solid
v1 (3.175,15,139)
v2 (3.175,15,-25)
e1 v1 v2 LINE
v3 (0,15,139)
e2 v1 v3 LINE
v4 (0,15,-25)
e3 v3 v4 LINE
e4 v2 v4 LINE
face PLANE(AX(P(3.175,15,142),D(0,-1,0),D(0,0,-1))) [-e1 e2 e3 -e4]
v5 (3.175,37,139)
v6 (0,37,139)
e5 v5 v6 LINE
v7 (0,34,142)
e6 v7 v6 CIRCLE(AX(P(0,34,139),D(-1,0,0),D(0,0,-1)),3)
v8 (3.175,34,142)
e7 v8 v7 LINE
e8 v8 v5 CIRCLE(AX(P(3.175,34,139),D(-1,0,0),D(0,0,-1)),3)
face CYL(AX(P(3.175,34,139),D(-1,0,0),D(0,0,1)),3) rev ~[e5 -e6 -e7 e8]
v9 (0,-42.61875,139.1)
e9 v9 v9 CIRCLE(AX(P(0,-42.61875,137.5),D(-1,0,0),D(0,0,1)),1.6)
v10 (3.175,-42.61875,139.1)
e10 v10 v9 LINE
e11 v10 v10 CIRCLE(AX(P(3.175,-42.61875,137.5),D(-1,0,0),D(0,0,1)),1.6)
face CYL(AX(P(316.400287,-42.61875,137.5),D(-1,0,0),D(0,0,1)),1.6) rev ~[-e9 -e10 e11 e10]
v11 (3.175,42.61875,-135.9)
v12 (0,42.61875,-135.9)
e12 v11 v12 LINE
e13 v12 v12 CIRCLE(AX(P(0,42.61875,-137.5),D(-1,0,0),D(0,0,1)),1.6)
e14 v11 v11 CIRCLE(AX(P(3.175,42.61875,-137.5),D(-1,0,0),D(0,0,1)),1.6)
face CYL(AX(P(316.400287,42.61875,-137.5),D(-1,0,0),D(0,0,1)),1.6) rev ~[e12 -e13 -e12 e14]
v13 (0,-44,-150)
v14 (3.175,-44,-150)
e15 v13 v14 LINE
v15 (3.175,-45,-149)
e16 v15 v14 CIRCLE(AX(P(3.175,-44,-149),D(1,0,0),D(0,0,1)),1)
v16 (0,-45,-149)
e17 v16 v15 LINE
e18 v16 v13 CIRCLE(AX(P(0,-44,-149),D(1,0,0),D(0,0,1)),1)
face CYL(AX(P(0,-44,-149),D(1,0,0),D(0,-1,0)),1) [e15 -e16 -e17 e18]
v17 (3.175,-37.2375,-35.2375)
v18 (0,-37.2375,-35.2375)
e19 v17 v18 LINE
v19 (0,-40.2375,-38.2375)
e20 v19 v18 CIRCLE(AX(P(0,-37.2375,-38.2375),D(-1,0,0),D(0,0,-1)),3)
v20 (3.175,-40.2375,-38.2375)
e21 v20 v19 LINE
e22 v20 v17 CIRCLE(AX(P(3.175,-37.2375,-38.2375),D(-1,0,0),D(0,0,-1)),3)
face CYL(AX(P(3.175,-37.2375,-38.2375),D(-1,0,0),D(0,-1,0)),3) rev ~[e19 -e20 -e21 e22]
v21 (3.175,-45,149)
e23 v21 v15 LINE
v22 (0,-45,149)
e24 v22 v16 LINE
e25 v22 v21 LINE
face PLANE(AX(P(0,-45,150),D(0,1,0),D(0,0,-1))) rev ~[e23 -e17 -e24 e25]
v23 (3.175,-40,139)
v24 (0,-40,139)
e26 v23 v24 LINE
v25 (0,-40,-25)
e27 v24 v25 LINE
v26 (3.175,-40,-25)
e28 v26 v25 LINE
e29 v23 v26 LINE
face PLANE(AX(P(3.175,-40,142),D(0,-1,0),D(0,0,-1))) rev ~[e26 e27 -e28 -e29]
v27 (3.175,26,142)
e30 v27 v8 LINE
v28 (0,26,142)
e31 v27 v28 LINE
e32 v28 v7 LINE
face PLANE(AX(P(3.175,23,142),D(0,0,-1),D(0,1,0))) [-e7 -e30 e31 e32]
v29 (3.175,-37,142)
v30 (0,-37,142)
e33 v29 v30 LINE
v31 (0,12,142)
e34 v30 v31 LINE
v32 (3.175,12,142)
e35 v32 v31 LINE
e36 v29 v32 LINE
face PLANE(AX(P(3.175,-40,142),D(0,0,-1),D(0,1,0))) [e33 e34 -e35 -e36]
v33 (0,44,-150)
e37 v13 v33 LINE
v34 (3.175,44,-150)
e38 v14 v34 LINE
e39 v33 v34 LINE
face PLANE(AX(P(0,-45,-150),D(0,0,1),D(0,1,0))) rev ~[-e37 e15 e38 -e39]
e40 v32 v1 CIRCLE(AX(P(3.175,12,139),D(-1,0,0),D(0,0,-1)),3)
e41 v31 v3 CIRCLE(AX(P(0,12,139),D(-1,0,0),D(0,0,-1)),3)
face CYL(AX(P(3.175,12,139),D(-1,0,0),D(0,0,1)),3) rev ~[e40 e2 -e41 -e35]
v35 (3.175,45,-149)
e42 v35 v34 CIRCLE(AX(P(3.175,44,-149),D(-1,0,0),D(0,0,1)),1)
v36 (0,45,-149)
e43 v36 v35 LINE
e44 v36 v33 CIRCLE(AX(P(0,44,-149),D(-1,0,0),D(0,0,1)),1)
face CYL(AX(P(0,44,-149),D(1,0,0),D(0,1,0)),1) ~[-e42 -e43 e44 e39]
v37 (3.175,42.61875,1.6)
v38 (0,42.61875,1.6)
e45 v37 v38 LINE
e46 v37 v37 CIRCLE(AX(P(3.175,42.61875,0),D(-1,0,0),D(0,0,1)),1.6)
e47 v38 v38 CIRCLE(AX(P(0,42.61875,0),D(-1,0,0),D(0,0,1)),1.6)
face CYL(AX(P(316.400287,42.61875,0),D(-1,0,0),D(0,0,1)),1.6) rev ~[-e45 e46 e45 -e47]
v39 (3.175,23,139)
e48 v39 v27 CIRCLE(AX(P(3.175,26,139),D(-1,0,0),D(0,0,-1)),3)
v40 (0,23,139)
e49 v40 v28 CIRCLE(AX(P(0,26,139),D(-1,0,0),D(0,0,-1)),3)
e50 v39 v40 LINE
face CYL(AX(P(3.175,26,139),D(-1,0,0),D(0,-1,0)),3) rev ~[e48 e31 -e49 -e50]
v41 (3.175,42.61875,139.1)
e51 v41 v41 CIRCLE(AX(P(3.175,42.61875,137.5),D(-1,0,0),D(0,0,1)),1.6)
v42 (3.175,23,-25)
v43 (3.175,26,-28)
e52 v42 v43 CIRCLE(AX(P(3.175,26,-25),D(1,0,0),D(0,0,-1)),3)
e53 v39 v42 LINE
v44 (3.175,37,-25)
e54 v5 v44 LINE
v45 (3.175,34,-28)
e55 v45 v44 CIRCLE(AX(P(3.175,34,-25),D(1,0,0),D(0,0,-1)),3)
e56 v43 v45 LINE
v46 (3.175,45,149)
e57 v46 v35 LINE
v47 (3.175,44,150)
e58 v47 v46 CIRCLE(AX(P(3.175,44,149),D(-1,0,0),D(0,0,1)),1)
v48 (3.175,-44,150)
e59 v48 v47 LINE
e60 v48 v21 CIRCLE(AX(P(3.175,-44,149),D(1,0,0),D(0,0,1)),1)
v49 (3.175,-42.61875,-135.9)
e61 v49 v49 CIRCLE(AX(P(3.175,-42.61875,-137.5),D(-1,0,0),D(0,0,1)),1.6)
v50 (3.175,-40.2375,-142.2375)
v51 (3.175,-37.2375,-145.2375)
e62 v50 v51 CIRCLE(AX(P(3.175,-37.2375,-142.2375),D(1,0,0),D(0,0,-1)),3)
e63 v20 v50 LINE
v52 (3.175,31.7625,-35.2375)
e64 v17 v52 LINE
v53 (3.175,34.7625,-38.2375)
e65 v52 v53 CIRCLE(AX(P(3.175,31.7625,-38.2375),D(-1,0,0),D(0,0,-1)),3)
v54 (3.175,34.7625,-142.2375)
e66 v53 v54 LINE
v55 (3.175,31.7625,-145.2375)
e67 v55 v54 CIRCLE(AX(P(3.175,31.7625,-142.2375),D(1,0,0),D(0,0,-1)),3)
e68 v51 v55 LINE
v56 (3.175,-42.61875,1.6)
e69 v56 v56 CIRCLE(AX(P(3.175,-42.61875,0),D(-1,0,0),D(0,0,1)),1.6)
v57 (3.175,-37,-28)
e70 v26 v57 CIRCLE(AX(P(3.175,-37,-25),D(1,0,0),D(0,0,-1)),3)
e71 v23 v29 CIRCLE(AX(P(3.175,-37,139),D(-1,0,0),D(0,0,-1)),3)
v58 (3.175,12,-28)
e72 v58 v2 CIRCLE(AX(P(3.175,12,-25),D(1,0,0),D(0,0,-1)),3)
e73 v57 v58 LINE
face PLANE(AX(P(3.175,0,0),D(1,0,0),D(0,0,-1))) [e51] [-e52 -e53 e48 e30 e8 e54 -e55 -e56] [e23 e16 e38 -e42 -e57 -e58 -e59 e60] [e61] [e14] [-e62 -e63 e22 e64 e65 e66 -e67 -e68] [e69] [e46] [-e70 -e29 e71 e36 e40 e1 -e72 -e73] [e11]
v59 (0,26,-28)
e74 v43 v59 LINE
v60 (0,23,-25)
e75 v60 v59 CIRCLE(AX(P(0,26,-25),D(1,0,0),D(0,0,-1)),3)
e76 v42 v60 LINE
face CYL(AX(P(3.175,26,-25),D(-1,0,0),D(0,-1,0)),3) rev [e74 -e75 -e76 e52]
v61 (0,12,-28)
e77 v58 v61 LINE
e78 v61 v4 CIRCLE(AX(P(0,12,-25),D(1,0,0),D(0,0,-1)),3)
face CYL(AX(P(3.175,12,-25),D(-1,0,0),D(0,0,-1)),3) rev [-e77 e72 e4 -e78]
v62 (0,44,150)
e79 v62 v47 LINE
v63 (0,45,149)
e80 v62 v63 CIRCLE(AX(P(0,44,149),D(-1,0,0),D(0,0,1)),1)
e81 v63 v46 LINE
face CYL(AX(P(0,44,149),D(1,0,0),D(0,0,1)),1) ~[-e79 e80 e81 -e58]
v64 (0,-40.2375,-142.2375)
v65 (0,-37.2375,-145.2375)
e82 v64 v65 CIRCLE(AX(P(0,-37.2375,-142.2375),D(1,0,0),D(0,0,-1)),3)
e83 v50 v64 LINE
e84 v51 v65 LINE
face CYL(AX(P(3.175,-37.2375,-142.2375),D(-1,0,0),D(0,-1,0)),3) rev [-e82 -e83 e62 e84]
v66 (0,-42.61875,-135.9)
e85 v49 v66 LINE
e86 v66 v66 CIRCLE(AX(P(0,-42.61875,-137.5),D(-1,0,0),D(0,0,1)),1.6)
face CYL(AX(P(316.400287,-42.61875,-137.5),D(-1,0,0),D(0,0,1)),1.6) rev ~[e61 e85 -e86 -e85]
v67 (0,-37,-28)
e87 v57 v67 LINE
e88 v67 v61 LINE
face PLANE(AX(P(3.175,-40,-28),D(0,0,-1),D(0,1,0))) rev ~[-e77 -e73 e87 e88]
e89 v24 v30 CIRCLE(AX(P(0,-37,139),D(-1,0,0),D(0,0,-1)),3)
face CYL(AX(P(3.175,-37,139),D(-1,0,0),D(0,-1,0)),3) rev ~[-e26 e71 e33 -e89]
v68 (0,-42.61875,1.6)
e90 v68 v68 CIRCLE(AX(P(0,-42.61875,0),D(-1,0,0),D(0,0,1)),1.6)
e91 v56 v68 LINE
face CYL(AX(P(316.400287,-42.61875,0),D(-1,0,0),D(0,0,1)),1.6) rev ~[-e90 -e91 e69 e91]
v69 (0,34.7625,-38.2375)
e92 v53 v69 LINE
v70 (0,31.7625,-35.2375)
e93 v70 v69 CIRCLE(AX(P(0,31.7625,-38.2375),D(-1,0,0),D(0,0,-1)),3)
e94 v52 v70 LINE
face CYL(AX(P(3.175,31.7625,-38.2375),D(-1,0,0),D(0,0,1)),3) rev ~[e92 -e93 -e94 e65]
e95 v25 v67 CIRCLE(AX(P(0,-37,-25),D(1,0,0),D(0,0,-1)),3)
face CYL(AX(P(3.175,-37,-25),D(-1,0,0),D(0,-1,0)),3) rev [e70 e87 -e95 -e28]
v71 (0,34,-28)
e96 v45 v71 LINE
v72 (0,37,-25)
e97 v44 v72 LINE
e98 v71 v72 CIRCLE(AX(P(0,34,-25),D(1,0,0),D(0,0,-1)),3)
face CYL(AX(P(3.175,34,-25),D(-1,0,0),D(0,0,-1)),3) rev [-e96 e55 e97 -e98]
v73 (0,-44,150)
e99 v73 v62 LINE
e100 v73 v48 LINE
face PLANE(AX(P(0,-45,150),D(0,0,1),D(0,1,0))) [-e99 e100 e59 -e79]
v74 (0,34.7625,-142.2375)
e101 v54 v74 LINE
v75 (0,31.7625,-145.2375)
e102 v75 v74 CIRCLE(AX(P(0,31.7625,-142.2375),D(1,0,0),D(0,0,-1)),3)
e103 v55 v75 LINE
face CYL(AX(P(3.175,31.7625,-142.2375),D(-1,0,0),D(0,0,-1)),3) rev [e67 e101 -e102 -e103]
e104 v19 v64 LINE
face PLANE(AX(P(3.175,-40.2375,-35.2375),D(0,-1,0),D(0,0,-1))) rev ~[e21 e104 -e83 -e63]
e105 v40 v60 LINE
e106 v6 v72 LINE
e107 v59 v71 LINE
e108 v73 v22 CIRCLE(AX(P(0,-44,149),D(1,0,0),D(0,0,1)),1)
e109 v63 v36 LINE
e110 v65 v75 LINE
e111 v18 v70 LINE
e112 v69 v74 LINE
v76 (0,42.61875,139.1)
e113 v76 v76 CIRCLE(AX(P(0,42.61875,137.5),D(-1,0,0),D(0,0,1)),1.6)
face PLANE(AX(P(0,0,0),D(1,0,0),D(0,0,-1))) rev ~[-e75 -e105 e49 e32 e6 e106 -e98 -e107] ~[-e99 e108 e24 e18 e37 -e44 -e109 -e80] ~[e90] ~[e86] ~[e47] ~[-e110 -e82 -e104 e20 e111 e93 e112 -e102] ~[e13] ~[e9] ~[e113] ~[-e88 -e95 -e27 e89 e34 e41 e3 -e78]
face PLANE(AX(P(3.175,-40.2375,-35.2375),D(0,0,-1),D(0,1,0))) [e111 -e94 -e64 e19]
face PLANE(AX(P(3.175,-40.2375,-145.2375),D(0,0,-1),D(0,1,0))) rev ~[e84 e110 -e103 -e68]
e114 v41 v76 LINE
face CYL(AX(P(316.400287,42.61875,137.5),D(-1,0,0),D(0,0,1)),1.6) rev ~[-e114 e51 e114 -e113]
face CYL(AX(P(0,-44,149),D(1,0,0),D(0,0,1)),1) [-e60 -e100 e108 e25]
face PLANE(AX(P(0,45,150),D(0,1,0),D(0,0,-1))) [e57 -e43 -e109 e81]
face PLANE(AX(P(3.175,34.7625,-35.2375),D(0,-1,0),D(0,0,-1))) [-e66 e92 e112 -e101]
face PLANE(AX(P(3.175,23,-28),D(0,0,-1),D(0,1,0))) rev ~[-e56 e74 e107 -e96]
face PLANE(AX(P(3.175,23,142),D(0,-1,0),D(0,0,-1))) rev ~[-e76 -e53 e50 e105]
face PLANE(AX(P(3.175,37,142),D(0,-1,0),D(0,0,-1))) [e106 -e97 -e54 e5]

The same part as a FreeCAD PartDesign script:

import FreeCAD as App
import Part
import Sketcher
Q = App.Units.Quantity


def edges_at(feature, points):
    """Names of the edges that pass closest to the given points."""
    edges = feature.Shape.Edges
    near = lambda p: min(range(len(edges)), key=lambda i: edges[i].distToShape(Part.Vertex(*p))[0])
    return sorted({f"Edge{near(p) + 1}" for p in points})


def add_polygon(sketch, points):
    """Adds a closed chain of lines whose ends are joined by coincident constraints."""
    first, n = sketch.GeometryCount, len(points)
    for a, b in zip(points, points[1:] + points[:1]):
        sketch.addGeometry(Part.LineSegment(App.Vector(*a, 0), App.Vector(*b, 0)), False)
    for i in range(n):
        sketch.addConstraint(Sketcher.Constraint("Coincident", first + i, 2, first + (i + 1) % n, 1))

doc = App.newDocument("Part")
params = doc.addObject("Spreadsheet::Sheet", "Params")
for row, (alias, value) in enumerate([
    ("sketch1_width", "90 mm"),
    ("sketch1_height", "300 mm"),
    ("pad1_length", "3.175 mm"),
    ("sketch2_width", "55 mm"),
    ("sketch2_width2", "75 mm"),
    ("sketch2_width3", "14 mm"),
    ("sketch2_height", "170 mm"),
    ("sketch2_height2", "110 mm"),
    ("sketch3_diameter", "3.2 mm"),
    ("hole_diameter", "3.2 mm"),
    ("fillet_radius", "3 mm"),
    ("fillet2_radius", "1 mm"),
], start=1):
    params.set(f"A{row}", alias)
    params.set(f"B{row}", "=" + value)
    params.setAlias(f"B{row}", alias)

body = doc.addObject("PartDesign::Body", "Body")

sketch1 = doc.addObject("Sketcher::SketchObject", "Sketch")
body.addObject(sketch1)
sketch1.AttachmentSupport = (doc.YZ_Plane, [""])
sketch1.MapMode = "FlatFace"
add_polygon(sketch1, [(45, 150), (-45, 150), (-45, -150), (45, -150)])
sketch1.addConstraint([
    Sketcher.Constraint("Horizontal", 0),
    Sketcher.Constraint("Vertical", 1),
    Sketcher.Constraint("Horizontal", 2),
    Sketcher.Constraint("Vertical", 3),
    Sketcher.Constraint("Symmetric", 0, 2, 2, 2, -1, 1),
    Sketcher.Constraint("DistanceX", 0, 2, 0, 1, Q("90 mm")),
    Sketcher.Constraint("DistanceY", 1, 2, 1, 1, Q("300 mm")),
])
sketch1.setExpression("Constraints[9]", "Params.sketch1_width")
sketch1.setExpression("Constraints[10]", "Params.sketch1_height")
pad1 = doc.addObject("PartDesign::Pad", "Pad")
body.addObject(pad1)
pad1.Profile = sketch1
pad1.setExpression("Length", "Params.pad1_length")

sketch2 = doc.addObject("Sketcher::SketchObject", "Sketch001")
body.addObject(sketch2)
sketch2.AttachmentSupport = (doc.YZ_Plane, [""])
sketch2.MapMode = "FlatFace"
sketch2.AttachmentOffset = App.Placement(App.Vector(0, 0, 3.175), App.Rotation())
add_polygon(sketch2, [(15, 142), (-40, 142), (-40, -28), (15, -28)])
add_polygon(sketch2, [(35, -35), (-40, -35), (-40, -145), (35, -145)])
add_polygon(sketch2, [(37, 142), (23, 142), (23, -28), (37, -28)])
sketch2.addConstraint([
    Sketcher.Constraint("Horizontal", 0),
    Sketcher.Constraint("Vertical", 1),
    Sketcher.Constraint("Horizontal", 2),
    Sketcher.Constraint("Vertical", 3),
    Sketcher.Constraint("Horizontal", 4),
    Sketcher.Constraint("Vertical", 5),
    Sketcher.Constraint("Horizontal", 6),
    Sketcher.Constraint("Vertical", 7),
    Sketcher.Constraint("Horizontal", 8),
    Sketcher.Constraint("Vertical", 9),
    Sketcher.Constraint("Horizontal", 10),
    Sketcher.Constraint("Vertical", 11),
    Sketcher.Constraint("Horizontal", 3, 2, 8, 2),
    Sketcher.Constraint("Horizontal", 2, 2, 9, 2),
    Sketcher.Constraint("DistanceX", 0, 2, 0, 1, Q("55 mm")),
    Sketcher.Constraint("DistanceX", 4, 2, 4, 1, Q("75 mm")),
    Sketcher.Constraint("DistanceX", 8, 2, 8, 1, Q("14 mm")),
    Sketcher.Constraint("DistanceY", 1, 2, 1, 1, Q("170 mm")),
    Sketcher.Constraint("DistanceY", 5, 2, 5, 1, Q("110 mm")),
    Sketcher.Constraint("DistanceX", 0, 2, -1, 1, Q("40 mm")),
    Sketcher.Constraint("DistanceY", -1, 1, 0, 2, Q("142 mm")),
    Sketcher.Constraint("DistanceX", -1, 1, 8, 2, Q("23 mm")),
    Sketcher.Constraint("DistanceX", 4, 2, -1, 1, Q("40.2375 mm")),
    Sketcher.Constraint("DistanceY", 4, 2, -1, 1, Q("35.2375 mm")),
])
sketch2.setExpression("Constraints[26]", "Params.sketch2_width")
sketch2.setExpression("Constraints[27]", "Params.sketch2_width2")
sketch2.setExpression("Constraints[28]", "Params.sketch2_width3")
sketch2.setExpression("Constraints[29]", "Params.sketch2_height")
sketch2.setExpression("Constraints[30]", "Params.sketch2_height2")
pocket1 = doc.addObject("PartDesign::Pocket", "Pocket")
body.addObject(pocket1)
pocket1.Profile = sketch2
pocket1.Type = "ThroughAll"

sketch3 = doc.addObject("Sketcher::SketchObject", "Sketch002")
body.addObject(sketch3)
sketch3.AttachmentSupport = (doc.YZ_Plane, [""])
sketch3.MapMode = "FlatFace"
sketch3.AttachmentOffset = App.Placement(App.Vector(0, 0, 3.175), App.Rotation())
sketch3.addGeometry([
    Part.Circle(App.Vector(42.6, 137.5, 0), App.Vector(0, 0, 1), 1.6),
    Part.Circle(App.Vector(42.6, 0, 0), App.Vector(0, 0, 1), 1.6),
    Part.Circle(App.Vector(42.6, -137.5, 0), App.Vector(0, 0, 1), 1.6),
    Part.Circle(App.Vector(-42.6, -137.5, 0), App.Vector(0, 0, 1), 1.6),
    Part.Circle(App.Vector(-42.6, 0, 0), App.Vector(0, 0, 1), 1.6),
    Part.Circle(App.Vector(-42.6, 137.5, 0), App.Vector(0, 0, 1), 1.6),
], False)
sketch3.addConstraint([
    Sketcher.Constraint("Equal", 0, 1),
    Sketcher.Constraint("Equal", 1, 2),
    Sketcher.Constraint("Equal", 2, 3),
    Sketcher.Constraint("Equal", 3, 4),
    Sketcher.Constraint("Equal", 4, 5),
    Sketcher.Constraint("Symmetric", 0, 3, 3, 3, -1, 1),
    Sketcher.Constraint("Symmetric", 1, 3, 4, 3, -1, 1),
    Sketcher.Constraint("Symmetric", 2, 3, 5, 3, -1, 1),
    Sketcher.Constraint("Symmetric", 2, 3, 3, 3, -2),
    Sketcher.Constraint("PointOnObject", 1, 3, -1),
    Sketcher.Constraint("Vertical", 0, 3, 1, 3),
    Sketcher.Constraint("Diameter", 0, Q("3.2 mm")),
    Sketcher.Constraint("DistanceY", 2, 3, 0, 3, Q("275 mm")),
    Sketcher.Constraint("DistanceX", 3, 3, 2, 3, Q("85.2375 mm")),
])
sketch3.setExpression("Constraints[11]", "Params.sketch3_diameter")
doc.recompute()
hole = doc.addObject("PartDesign::Hole", "Hole")
body.addObject(hole)
hole.Profile = sketch3
hole.ThreadType = "None"
hole.setExpression("Diameter", "Params.hole_diameter")
hole.DepthType = "ThroughAll"
doc.recompute()

fillet = doc.addObject("PartDesign::Fillet", "Fillet")
body.addObject(fillet)
fillet.Base = (hole, edges_at(hole, [
    (1.587, 34.763, -145.238),
    (1.587, -40.237, -145.238),
    (1.587, -40.237, -35.237),
    (1.587, 34.763, -35.237),
    (1.587, -40, 142),
    (1.587, 15, 142),
    (1.587, 15, -28),
    (1.587, -40, -28),
    (1.587, 23, 142),
    (1.587, 37, 142),
    (1.587, 37, -28),
    (1.587, 23, -28),
]))
fillet.setExpression("Radius", "Params.fillet_radius")
doc.recompute()

fillet2 = doc.addObject("PartDesign::Fillet", "Fillet001")
body.addObject(fillet2)
fillet2.Base = (fillet, edges_at(fillet, [
    (1.587, -45, -150),
    (1.587, -45, 150),
    (1.587, 45, 150),
    (1.587, 45, -150),
]))
fillet2.setExpression("Radius", "Params.fillet2_radius")

doc.recompute()
